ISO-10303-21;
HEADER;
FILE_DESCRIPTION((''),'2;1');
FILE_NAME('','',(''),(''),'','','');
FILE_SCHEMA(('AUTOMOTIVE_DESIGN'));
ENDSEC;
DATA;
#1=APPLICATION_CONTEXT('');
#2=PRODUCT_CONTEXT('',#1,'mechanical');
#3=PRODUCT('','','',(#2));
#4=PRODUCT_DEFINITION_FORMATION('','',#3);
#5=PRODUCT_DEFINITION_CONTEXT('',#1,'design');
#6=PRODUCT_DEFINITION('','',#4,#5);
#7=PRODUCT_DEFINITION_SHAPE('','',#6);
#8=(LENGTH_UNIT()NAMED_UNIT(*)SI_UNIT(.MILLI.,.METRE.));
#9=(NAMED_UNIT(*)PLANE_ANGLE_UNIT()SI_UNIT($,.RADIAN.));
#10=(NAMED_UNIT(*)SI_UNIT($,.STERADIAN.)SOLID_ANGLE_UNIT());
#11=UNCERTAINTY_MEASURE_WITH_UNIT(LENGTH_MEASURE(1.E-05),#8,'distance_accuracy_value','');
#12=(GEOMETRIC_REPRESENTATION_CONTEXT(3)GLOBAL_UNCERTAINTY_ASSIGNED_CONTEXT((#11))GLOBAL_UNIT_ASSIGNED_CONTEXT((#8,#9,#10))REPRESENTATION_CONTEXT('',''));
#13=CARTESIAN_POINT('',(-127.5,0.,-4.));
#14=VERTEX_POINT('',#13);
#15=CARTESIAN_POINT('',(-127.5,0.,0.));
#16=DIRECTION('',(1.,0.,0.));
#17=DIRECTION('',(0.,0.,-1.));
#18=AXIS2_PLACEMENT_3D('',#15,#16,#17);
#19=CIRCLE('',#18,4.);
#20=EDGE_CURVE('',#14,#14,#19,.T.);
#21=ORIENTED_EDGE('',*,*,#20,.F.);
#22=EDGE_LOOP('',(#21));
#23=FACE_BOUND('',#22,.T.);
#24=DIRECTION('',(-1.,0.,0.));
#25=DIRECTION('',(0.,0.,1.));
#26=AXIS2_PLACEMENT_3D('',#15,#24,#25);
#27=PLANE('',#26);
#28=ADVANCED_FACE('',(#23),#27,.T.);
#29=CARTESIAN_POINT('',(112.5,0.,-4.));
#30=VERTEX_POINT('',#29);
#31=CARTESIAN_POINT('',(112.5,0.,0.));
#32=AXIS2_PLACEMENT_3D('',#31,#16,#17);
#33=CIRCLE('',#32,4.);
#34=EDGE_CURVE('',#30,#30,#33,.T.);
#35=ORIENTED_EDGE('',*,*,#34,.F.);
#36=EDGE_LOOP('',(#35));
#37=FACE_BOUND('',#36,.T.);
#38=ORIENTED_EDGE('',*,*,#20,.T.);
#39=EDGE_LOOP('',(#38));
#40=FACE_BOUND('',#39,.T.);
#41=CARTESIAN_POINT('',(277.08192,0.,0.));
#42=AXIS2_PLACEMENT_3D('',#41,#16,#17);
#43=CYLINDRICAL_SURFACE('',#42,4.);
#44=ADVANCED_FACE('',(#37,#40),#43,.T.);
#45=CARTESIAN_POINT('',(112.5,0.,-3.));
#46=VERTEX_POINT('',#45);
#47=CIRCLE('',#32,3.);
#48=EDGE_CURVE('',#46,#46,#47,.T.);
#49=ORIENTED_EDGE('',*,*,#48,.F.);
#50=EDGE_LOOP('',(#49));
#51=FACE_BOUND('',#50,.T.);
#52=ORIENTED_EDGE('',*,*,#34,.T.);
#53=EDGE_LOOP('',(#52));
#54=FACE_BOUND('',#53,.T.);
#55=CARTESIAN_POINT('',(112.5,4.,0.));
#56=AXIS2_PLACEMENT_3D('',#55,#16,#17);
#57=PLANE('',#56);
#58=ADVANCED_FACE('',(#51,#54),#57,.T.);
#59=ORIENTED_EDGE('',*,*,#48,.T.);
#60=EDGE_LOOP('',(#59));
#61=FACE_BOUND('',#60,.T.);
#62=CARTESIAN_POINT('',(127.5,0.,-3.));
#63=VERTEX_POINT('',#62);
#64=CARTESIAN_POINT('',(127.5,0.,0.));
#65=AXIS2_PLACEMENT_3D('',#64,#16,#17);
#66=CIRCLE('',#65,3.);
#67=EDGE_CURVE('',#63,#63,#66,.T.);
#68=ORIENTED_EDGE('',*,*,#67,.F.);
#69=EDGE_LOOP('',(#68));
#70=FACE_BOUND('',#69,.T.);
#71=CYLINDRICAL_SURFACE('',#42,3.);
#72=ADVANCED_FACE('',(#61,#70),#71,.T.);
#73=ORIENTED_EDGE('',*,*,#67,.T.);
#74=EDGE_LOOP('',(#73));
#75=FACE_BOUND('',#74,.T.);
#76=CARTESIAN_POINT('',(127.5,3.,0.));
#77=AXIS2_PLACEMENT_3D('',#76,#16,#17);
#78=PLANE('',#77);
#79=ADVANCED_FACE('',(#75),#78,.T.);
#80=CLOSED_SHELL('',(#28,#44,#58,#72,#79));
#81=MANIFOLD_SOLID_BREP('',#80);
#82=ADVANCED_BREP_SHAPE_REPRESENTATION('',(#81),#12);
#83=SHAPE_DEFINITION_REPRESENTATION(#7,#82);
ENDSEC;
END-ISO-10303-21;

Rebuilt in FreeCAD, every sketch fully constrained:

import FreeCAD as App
import Part
import Sketcher
Q = App.Units.Quantity

doc = App.newDocument("Part")
params = doc.addObject("Spreadsheet::Sheet", "Params")
for row, (alias, value) in enumerate([
    ("sketch1_width", "255 mm"),
    ("sketch1_width2", "15 mm"),
    ("sketch1_height", "4 mm"),
    ("sketch1_height2", "3 mm"),
    ("revolution_angle", "360 deg"),
], start=1):
    params.set(f"A{row}", alias)
    params.set(f"B{row}", "=" + value)
    params.setAlias(f"B{row}", alias)

body = doc.addObject("PartDesign::Body", "Body")

# Sketch on XY plane
sketch1 = doc.addObject("Sketcher::SketchObject", "Sketch")
body.addObject(sketch1)
sketch1.AttachmentSupport = (doc.XY_Plane, [""])
sketch1.MapMode = "FlatFace"
sketch1.addGeometry([
    Part.LineSegment(App.Vector(-127.5, 4, 0), App.Vector(-127.5, 0, 0)),  # 0
    Part.LineSegment(App.Vector(-127.5, 0, 0), App.Vector(127.5, 0, 0)),  # 1
    Part.LineSegment(App.Vector(127.5, 0, 0), App.Vector(127.5, 3, 0)),  # 2
    Part.LineSegment(App.Vector(127.5, 3, 0), App.Vector(112.5, 3, 0)),  # 3
    Part.LineSegment(App.Vector(112.5, 3, 0), App.Vector(112.5, 4, 0)),  # 4
    Part.LineSegment(App.Vector(112.5, 4, 0), App.Vector(-127.5, 4, 0)),  # 5
], False)
sketch1.addConstraint([
    Sketcher.Constraint("Coincident", 0, 2, 1, 1),
    Sketcher.Constraint("Coincident", 1, 2, 2, 1),
    Sketcher.Constraint("Coincident", 2, 2, 3, 1),
    Sketcher.Constraint("Coincident", 3, 2, 4, 1),
    Sketcher.Constraint("Coincident", 4, 2, 5, 1),
    Sketcher.Constraint("Coincident", 5, 2, 0, 1),
    Sketcher.Constraint("Vertical", 0),
    Sketcher.Constraint("Horizontal", 1),
    Sketcher.Constraint("Vertical", 2),
    Sketcher.Constraint("Horizontal", 3),
    Sketcher.Constraint("Vertical", 4),
    Sketcher.Constraint("Horizontal", 5),
    Sketcher.Constraint("Symmetric", 0, 2, 1, 2, -1, 1),
    Sketcher.Constraint("DistanceX", 1, 1, 1, 2, Q("255 mm")),
    Sketcher.Constraint("DistanceX", 3, 2, 3, 1, Q("15 mm")),
    Sketcher.Constraint("DistanceY", 0, 2, 0, 1, Q("4 mm")),
    Sketcher.Constraint("DistanceY", 2, 1, 2, 2, Q("3 mm")),
])
sketch1.setExpression("Constraints[13]", "Params.sketch1_width")
sketch1.setExpression("Constraints[14]", "Params.sketch1_width2")
sketch1.setExpression("Constraints[15]", "Params.sketch1_height")
sketch1.setExpression("Constraints[16]", "Params.sketch1_height2")
revolution = doc.addObject("PartDesign::Revolution", "Revolution")
body.addObject(revolution)
revolution.Profile = sketch1
revolution.ReferenceAxis = (sketch1, ["H_Axis"])
revolution.setExpression("Angle", "Params.revolution_angle")

doc.recompute()
